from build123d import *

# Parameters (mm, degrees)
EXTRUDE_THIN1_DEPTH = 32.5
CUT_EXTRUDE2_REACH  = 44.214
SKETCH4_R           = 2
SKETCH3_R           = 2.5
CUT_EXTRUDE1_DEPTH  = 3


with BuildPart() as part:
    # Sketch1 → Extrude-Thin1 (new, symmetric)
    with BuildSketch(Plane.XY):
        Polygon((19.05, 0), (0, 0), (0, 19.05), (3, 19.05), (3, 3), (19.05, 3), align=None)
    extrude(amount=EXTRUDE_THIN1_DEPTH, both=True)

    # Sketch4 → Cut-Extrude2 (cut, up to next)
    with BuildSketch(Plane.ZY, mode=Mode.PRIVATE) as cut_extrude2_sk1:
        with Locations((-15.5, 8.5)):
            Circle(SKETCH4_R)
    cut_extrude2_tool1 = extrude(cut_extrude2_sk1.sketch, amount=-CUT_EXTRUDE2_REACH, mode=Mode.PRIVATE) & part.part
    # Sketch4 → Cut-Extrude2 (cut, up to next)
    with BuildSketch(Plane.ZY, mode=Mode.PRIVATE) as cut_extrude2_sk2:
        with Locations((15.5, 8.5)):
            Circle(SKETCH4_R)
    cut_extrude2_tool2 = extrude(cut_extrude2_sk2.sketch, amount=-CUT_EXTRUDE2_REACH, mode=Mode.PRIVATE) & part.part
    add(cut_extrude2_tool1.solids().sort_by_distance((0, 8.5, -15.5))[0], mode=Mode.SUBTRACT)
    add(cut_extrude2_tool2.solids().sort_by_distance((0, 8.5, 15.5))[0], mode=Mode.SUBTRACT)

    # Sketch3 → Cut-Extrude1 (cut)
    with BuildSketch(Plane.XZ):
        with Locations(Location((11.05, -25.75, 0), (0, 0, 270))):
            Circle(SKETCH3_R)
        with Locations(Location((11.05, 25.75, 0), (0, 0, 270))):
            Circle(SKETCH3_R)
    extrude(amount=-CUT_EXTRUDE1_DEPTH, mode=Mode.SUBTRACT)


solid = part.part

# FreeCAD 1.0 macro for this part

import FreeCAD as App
import Part
import Sketcher

V = App.Vector


def add_polygon(sketch, points):
    """Adds a closed chain of lines whose ends are joined by coincident constraints."""
    first, n = sketch.GeometryCount, len(points)
    for a, b in zip(points, points[1:] + points[:1]):
        sketch.addGeometry(Part.LineSegment(App.Vector(*a, 0), App.Vector(*b, 0)), False)
    for i in range(n):
        sketch.addConstraint(Sketcher.Constraint("Coincident", first + i, 2, first + (i + 1) % n, 1))

doc = App.newDocument("Part")
params = doc.addObject("Spreadsheet::Sheet", "Params")
for row, (alias, value) in enumerate([
    ("sketch1_width", "3 mm"),
    ("sketch1_width2", "19.05 mm"),
    ("pad1_length", "65 mm"),
    ("sketch2_diameter", "4 mm"),
    ("sketch3_diameter", "4 mm"),
    ("sketch4_diameter", "5 mm"),
    ("pocket3_length", "3 mm"),
], start=1):
    params.set(f"A{row}", alias)
    params.set(f"B{row}", "=" + value)
    params.setAlias(f"B{row}", alias)

body = doc.addObject("PartDesign::Body", "Body")

sketch1 = body.newObject("Sketcher::SketchObject", "Sketch")
sketch1.AttachmentSupport = (doc.getObject("XY_Plane"), [""])
sketch1.MapMode = "FlatFace"
add_polygon(sketch1, [(0, 0), (19.1, 0), (19.1, 3), (3, 3), (3, 19.1), (0, 19.1)])
sketch1.addConstraint(Sketcher.Constraint("Horizontal", 0))
sketch1.addConstraint(Sketcher.Constraint("Vertical", 1))
sketch1.addConstraint(Sketcher.Constraint("Horizontal", 2))
sketch1.addConstraint(Sketcher.Constraint("Vertical", 3))
sketch1.addConstraint(Sketcher.Constraint("Horizontal", 4))
sketch1.addConstraint(Sketcher.Constraint("Vertical", 5))
sketch1.addConstraint(Sketcher.Constraint("Coincident", 5, 2, -1, 1))
sketch1.addConstraint(Sketcher.Constraint("Equal", 4, 1))
sketch1.addConstraint(Sketcher.Constraint("Equal", 2, 3))
sketch1.addConstraint(Sketcher.Constraint("DistanceX", 4, 2, 4, 1, 3.0))
sketch1.addConstraint(Sketcher.Constraint("DistanceX", 0, 1, 0, 2, 19.05))
sketch1.setExpression("Constraints[15]", "Params.sketch1_width")
sketch1.setExpression("Constraints[16]", "Params.sketch1_width2")
pad1 = body.newObject("PartDesign::Pad", "Pad")
pad1.Profile = sketch1
pad1.setExpression("Length", "Params.pad1_length")
pad1.Midplane = True

sketch2 = body.newObject("Sketcher::SketchObject", "Sketch001")
sketch2.AttachmentSupport = (doc.getObject("YZ_Plane"), [""])
sketch2.MapMode = "FlatFace"
sketch2.addGeometry(Part.Circle(V(8.5, -15.5, 0), V(0, 0, 1), 2), False)
sketch2.addConstraint(Sketcher.Constraint("Diameter", 0, 4.0))
sketch2.addConstraint(Sketcher.Constraint("DistanceX", -1, 1, 0, 3, 8.5))
sketch2.addConstraint(Sketcher.Constraint("DistanceY", 0, 3, -1, 1, 15.5))
sketch2.setExpression("Constraints[0]", "Params.sketch2_diameter")
pocket1 = body.newObject("PartDesign::Pocket", "Pocket")
pocket1.Profile = sketch2
pocket1.Type = "UpToFirst"
pocket1.Reversed = True

sketch3 = body.newObject("Sketcher::SketchObject", "Sketch002")
sketch3.AttachmentSupport = (doc.getObject("YZ_Plane"), [""])
sketch3.MapMode = "FlatFace"
sketch3.addGeometry(Part.Circle(V(8.5, 15.5, 0), V(0, 0, 1), 2), False)
sketch3.addConstraint(Sketcher.Constraint("Diameter", 0, 4.0))
sketch3.addConstraint(Sketcher.Constraint("DistanceX", -1, 1, 0, 3, 8.5))
sketch3.addConstraint(Sketcher.Constraint("DistanceY", -1, 1, 0, 3, 15.5))
sketch3.setExpression("Constraints[0]", "Params.sketch3_diameter")
pocket2 = body.newObject("PartDesign::Pocket", "Pocket001")
pocket2.Profile = sketch3
pocket2.Type = "UpToFirst"
pocket2.Reversed = True

sketch4 = body.newObject("Sketcher::SketchObject", "Sketch003")
sketch4.AttachmentSupport = (doc.getObject("XZ_Plane"), [""])
sketch4.MapMode = "FlatFace"
sketch4.addGeometry(Part.Circle(V(11.1, -25.8, 0), V(0, 0, 1), 2.5), False)
sketch4.addGeometry(Part.Circle(V(11.1, 25.8, 0), V(0, 0, 1), 2.5), False)
sketch4.addConstraint(Sketcher.Constraint("Equal", 0, 1))
sketch4.addConstraint(Sketcher.Constraint("Symmetric", 0, 3, 1, 3, -1))
sketch4.addConstraint(Sketcher.Constraint("Diameter", 0, 5.0))
sketch4.addConstraint(Sketcher.Constraint("DistanceY", 0, 3, 1, 3, 51.5))
sketch4.addConstraint(Sketcher.Constraint("DistanceX", -1, 1, 0, 3, 11.05))
sketch4.setExpression("Constraints[2]", "Params.sketch4_diameter")
pocket3 = body.newObject("PartDesign::Pocket", "Pocket002")
pocket3.Profile = sketch4
pocket3.setExpression("Length", "Params.pocket3_length")

doc.recompute()
